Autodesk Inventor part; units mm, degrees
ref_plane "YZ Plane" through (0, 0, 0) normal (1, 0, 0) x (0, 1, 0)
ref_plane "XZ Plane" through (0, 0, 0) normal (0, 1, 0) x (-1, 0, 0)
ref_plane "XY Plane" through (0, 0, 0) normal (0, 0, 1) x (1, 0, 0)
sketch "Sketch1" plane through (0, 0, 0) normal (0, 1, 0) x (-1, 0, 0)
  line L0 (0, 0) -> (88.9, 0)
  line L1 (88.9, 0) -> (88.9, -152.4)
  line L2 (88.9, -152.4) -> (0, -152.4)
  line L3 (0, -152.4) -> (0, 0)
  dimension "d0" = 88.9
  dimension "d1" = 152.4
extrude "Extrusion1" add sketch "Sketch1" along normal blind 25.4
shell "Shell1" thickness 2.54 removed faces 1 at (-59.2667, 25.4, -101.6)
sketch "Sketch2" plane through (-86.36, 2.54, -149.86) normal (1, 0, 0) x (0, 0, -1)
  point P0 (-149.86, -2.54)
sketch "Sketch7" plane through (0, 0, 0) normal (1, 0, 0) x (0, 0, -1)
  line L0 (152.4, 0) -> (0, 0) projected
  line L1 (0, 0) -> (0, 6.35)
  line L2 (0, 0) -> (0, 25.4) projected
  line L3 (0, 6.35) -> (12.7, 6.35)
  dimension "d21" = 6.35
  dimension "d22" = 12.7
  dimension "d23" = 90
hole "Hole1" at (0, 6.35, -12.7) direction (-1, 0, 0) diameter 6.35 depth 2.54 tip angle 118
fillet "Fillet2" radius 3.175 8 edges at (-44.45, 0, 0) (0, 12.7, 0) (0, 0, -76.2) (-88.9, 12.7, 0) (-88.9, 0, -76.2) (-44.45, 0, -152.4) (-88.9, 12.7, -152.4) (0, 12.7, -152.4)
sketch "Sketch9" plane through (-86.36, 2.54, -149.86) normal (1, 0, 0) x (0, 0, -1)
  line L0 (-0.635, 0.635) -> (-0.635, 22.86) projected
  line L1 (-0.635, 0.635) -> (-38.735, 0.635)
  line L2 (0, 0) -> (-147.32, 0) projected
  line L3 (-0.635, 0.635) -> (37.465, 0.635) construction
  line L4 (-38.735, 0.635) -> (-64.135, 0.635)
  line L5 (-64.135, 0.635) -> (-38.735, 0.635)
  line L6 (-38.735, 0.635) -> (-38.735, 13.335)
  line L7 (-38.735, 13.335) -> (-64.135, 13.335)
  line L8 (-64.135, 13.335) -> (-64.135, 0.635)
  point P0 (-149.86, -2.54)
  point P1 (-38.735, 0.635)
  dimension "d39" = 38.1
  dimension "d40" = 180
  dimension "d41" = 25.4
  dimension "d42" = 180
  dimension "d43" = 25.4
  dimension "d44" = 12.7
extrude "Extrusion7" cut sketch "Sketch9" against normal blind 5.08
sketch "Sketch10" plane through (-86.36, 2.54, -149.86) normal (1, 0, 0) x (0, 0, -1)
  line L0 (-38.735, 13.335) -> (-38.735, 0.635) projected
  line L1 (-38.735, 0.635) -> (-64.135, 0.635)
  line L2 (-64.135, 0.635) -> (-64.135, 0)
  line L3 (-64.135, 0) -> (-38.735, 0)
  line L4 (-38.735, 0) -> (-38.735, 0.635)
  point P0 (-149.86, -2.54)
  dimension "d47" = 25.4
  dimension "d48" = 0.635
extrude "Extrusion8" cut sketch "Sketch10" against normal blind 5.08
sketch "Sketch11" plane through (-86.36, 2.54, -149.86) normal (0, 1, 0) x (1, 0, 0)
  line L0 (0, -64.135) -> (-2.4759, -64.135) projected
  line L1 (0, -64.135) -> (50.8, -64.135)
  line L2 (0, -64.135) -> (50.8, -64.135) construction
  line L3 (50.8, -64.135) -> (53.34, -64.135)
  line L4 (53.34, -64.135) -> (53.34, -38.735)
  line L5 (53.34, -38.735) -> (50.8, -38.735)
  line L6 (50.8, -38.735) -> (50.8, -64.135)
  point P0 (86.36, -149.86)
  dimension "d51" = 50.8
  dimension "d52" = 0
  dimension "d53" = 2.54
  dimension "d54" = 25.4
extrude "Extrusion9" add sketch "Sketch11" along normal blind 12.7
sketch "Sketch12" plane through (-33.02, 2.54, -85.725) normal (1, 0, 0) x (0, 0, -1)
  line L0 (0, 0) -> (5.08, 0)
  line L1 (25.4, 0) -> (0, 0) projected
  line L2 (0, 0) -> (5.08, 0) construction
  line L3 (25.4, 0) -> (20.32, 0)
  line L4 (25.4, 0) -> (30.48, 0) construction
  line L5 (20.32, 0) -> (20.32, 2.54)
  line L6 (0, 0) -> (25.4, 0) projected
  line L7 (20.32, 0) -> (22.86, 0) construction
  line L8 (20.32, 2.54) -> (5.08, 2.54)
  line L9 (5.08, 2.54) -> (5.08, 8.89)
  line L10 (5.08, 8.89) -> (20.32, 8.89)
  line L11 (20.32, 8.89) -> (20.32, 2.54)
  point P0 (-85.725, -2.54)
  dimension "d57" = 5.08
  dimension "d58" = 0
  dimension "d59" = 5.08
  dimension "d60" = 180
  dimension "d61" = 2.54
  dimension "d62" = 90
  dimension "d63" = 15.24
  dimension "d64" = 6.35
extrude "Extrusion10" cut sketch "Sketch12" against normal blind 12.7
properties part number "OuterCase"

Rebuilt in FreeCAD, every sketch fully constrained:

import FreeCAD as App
import Part
import Sketcher

V = App.Vector
Q = App.Units.Quantity


def edges_at(feature, points):
    """Names of the edges that pass closest to the given points."""
    edges = feature.Shape.Edges
    near = lambda p: min(range(len(edges)), key=lambda i: edges[i].distToShape(Part.Vertex(*p))[0])
    return sorted({f"Edge{near(p) + 1}" for p in points})


def faces_at(feature, points):
    """Names of the faces that lie closest to the given points."""
    faces = feature.Shape.Faces
    near = lambda p: min(range(len(faces)), key=lambda i: faces[i].distToShape(Part.Vertex(*p))[0])
    return sorted({f"Face{near(p) + 1}" for p in points})


def add_polygon(sketch, points):
    """Adds a closed chain of lines whose ends are joined by coincident constraints."""
    first, n = sketch.GeometryCount, len(points)
    for a, b in zip(points, points[1:] + points[:1]):
        sketch.addGeometry(Part.LineSegment(App.Vector(*a, 0), App.Vector(*b, 0)), False)
    for i in range(n):
        sketch.addConstraint(Sketcher.Constraint("Coincident", first + i, 2, first + (i + 1) % n, 1))

doc = App.newDocument("Part")
body = doc.addObject("PartDesign::Body", "Body")

sketch1 = body.newObject("Sketcher::SketchObject", "Sketch")
sketch1.AttachmentSupport = (doc.getObject("XZ_Plane"), [""])
sketch1.MapMode = "FlatFace"
add_polygon(sketch1, [(-89, 0), (0, 0), (0, -152), (-89, -152)])
sketch1.addConstraint([
    Sketcher.Constraint("Horizontal", 0),
    Sketcher.Constraint("Vertical", 1),
    Sketcher.Constraint("Horizontal", 2),
    Sketcher.Constraint("Vertical", 3),
    Sketcher.Constraint("Coincident", 0, 2, -1, 1),
    Sketcher.Constraint("DistanceY", 1, 2, 1, 1, Q("6 in")),
    Sketcher.Constraint("DistanceX", 0, 1, 0, 2, Q("3.5 in")),
])
pad1 = body.newObject("PartDesign::Pad", "Pad")
pad1.Profile = sketch1
pad1.Length = Q("1 in")
pad1.Reversed = True
doc.recompute()

thickness = body.newObject("PartDesign::Thickness", "Thickness")
thickness.Base = (pad1, faces_at(pad1, [(-59.267, 25.4, -101.6)]))
thickness.Value = Q("0.1 in")
thickness.Reversed = True
thickness.Join = "Intersection"

sketch2 = body.newObject("Sketcher::SketchObject", "Sketch001")
sketch2.AttachmentSupport = (doc.getObject("YZ_Plane"), [""])
sketch2.MapMode = "FlatFace"
sketch2.addGeometry(Part.Circle(V(6.3, -12.7, 0), V(0, 0, 1), 3.2), False)
sketch2.addConstraint([
    Sketcher.Constraint("Diameter", 0, Q("0.25 in")),
    Sketcher.Constraint("DistanceY", 0, 3, -1, 1, Q("0.5 in")),
    Sketcher.Constraint("DistanceX", -1, 1, 0, 3, Q("0.25 in")),
])
doc.recompute()
hole = body.newObject("PartDesign::Hole", "Hole")
hole.Profile = sketch2
hole.ThreadType = "None"
hole.Diameter = Q("0.25 in")
hole.DepthType = "Dimension"
hole.Depth = Q("0.1 in")
hole.DrillPoint = "Angled"
hole.DrillPointAngle = 118
doc.recompute()

fillet = body.newObject("PartDesign::Fillet", "Fillet")
fillet.Base = (hole, edges_at(hole, [
    (-44.45, 0, 0),
    (0, 12.7, 0),
    (0, 0, -76.2),
    (-88.9, 12.7, 0),
    (-88.9, 0, -76.2),
    (-44.45, 0, -152.4),
    (-88.9, 12.7, -152.4),
    (0, 12.7, -152.4),
]))
fillet.Radius = Q("0.125 in")

sketch3 = body.newObject("Sketcher::SketchObject", "Sketch002")
sketch3.AttachmentSupport = (doc.getObject("YZ_Plane"), [""])
sketch3.MapMode = "FlatFace"
sketch3.AttachmentOffset = App.Placement(V(0, 0, -3.4 * 25.4), App.Rotation())
add_polygon(sketch3, [(3, -86), (3, -111), (16, -111), (16, -86)])
sketch3.addConstraint([
    Sketcher.Constraint("Vertical", 0),
    Sketcher.Constraint("Horizontal", 1),
    Sketcher.Constraint("Vertical", 2),
    Sketcher.Constraint("Horizontal", 3),
    Sketcher.Constraint("DistanceY", 0, 2, 0, 1, Q("1 in")),
    Sketcher.Constraint("DistanceX", 1, 1, 1, 2, Q("0.5 in")),
    Sketcher.Constraint("DistanceX", -1, 1, 0, 2, Q("0.125 in")),
    Sketcher.Constraint("DistanceY", 0, 2, -1, 1, Q("4.375 in")),
])
pocket1 = body.newObject("PartDesign::Pocket", "Pocket")
pocket1.Profile = sketch3
pocket1.Length = Q("0.2 in")

sketch4 = body.newObject("Sketcher::SketchObject", "Sketch003")
sketch4.AttachmentSupport = (doc.getObject("YZ_Plane"), [""])
sketch4.MapMode = "FlatFace"
sketch4.AttachmentOffset = App.Placement(V(0, 0, -3.4 * 25.4), App.Rotation())
add_polygon(sketch4, [(2.5, -111.1), (3.2, -111.1), (3.2, -85.7), (2.5, -85.7)])
sketch4.addConstraint([
    Sketcher.Constraint("Horizontal", 0),
    Sketcher.Constraint("Vertical", 1),
    Sketcher.Constraint("Horizontal", 2),
    Sketcher.Constraint("Vertical", 3),
    Sketcher.Constraint("DistanceY", 1, 1, 1, 2, Q("1 in")),
    Sketcher.Constraint("DistanceX", 0, 1, 0, 2, Q("0.025 in")),
    Sketcher.Constraint("DistanceX", -1, 1, 2, 2, Q("0.1 in")),
    Sketcher.Constraint("DistanceY", 0, 2, -1, 1, Q("4.375 in")),
])
pocket2 = body.newObject("PartDesign::Pocket", "Pocket001")
pocket2.Profile = sketch4
pocket2.Length = Q("0.2 in")

sketch5 = body.newObject("Sketcher::SketchObject", "Sketch004")
sketch5.AttachmentSupport = (doc.getObject("XZ_Plane"), [""])
sketch5.MapMode = "FlatFace"
sketch5.AttachmentOffset = App.Placement(V(0, 0, -0.1 * 25.4), App.Rotation())
add_polygon(sketch5, [(-35.6, -111.1), (-35.6, -85.7), (-33, -85.7), (-33, -111.1)])
sketch5.addConstraint([
    Sketcher.Constraint("Vertical", 0),
    Sketcher.Constraint("Horizontal", 1),
    Sketcher.Constraint("Vertical", 2),
    Sketcher.Constraint("Horizontal", 3),
    Sketcher.Constraint("DistanceY", 0, 1, 0, 2, Q("1 in")),
    Sketcher.Constraint("DistanceX", 1, 1, 1, 2, Q("0.1 in")),
    Sketcher.Constraint("DistanceX", 0, 2, -1, 1, Q("1.4 in")),
    Sketcher.Constraint("DistanceY", 0, 2, -1, 1, Q("3.375 in")),
])
pad2 = body.newObject("PartDesign::Pad", "Pad001")
pad2.Profile = sketch5
pad2.Length = Q("0.5 in")
pad2.Reversed = True

sketch6 = body.newObject("Sketcher::SketchObject", "Sketch005")
sketch6.AttachmentSupport = (doc.getObject("YZ_Plane"), [""])
sketch6.MapMode = "FlatFace"
sketch6.AttachmentOffset = App.Placement(V(0, 0, -1.3 * 25.4), App.Rotation())
add_polygon(sketch6, [(5, -91), (5, -106), (11, -106), (11, -91)])
sketch6.addConstraint([
    Sketcher.Constraint("Vertical", 0),
    Sketcher.Constraint("Horizontal", 1),
    Sketcher.Constraint("Vertical", 2),
    Sketcher.Constraint("Horizontal", 3),
    Sketcher.Constraint("DistanceY", 0, 2, 0, 1, Q("0.6 in")),
    Sketcher.Constraint("DistanceX", 1, 1, 1, 2, Q("0.25 in")),
    Sketcher.Constraint("DistanceX", -1, 1, 0, 2, Q("0.2 in")),
    Sketcher.Constraint("DistanceY", 0, 2, -1, 1, Q("4.175 in")),
])
pocket3 = body.newObject("PartDesign::Pocket", "Pocket002")
pocket3.Profile = sketch6
pocket3.Length = Q("0.5 in")

doc.recompute()
